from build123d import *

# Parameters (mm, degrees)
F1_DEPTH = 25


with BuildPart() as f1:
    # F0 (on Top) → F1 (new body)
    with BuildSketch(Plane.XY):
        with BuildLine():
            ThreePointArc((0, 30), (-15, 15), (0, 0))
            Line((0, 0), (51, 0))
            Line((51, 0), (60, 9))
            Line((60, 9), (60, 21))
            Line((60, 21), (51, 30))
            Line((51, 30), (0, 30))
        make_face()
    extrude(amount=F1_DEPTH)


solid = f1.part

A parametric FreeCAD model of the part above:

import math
import FreeCAD as App
import Part
import Sketcher

V = App.Vector

doc = App.newDocument("Part")
body = doc.addObject("PartDesign::Body", "Body")

# Sketch on XY plane
sketch1 = doc.addObject("Sketcher::SketchObject", "Sketch")
body.addObject(sketch1)
sketch1.AttachmentSupport = (doc.XY_Plane, [""])
sketch1.MapMode = "FlatFace"
sketch1.addGeometry([
    Part.ArcOfCircle(Part.Circle(V(0, 15, 0), V(0, 0, 1), 15), math.radians(90), math.radians(270)),  # 0
    Part.LineSegment(V(0, 0, 0), V(51, 0, 0)),  # 1
    Part.LineSegment(V(51, 0, 0), V(60, 9, 0)),  # 2
    Part.LineSegment(V(60, 9, 0), V(60, 21, 0)),  # 3
    Part.LineSegment(V(60, 21, 0), V(51, 30, 0)),  # 4
    Part.LineSegment(V(51, 30, 0), V(0, 30, 0)),  # 5
], False)
sketch1.addConstraint([
    Sketcher.Constraint("Tangent", 0, 2, 1, 1),
    Sketcher.Constraint("Coincident", 1, 2, 2, 1),
    Sketcher.Constraint("Coincident", 2, 2, 3, 1),
    Sketcher.Constraint("Coincident", 3, 2, 4, 1),
    Sketcher.Constraint("Coincident", 4, 2, 5, 1),
    Sketcher.Constraint("Tangent", 5, 2, 0, 1),
    Sketcher.Constraint("Horizontal", 1),
    Sketcher.Constraint("Vertical", 3),
    Sketcher.Constraint("Horizontal", 5),
    Sketcher.Constraint("Coincident", 0, 2, -1, 1),
    Sketcher.Constraint("Perpendicular", 2, 4),
    Sketcher.Constraint("Vertical", 1, 2, 4, 2),
    Sketcher.Constraint("Equal", 2, 4),
    Sketcher.Constraint("Radius", 0, 15.0),
    Sketcher.Constraint("DistanceX", 1, 1, 1, 2, 51.0),
    Sketcher.Constraint("DistanceY", 3, 1, 3, 2, 12.0),
])
pad1 = doc.addObject("PartDesign::Pad", "Pad")
body.addObject(pad1)
pad1.Profile = sketch1
pad1.Length = 25

doc.recompute()
